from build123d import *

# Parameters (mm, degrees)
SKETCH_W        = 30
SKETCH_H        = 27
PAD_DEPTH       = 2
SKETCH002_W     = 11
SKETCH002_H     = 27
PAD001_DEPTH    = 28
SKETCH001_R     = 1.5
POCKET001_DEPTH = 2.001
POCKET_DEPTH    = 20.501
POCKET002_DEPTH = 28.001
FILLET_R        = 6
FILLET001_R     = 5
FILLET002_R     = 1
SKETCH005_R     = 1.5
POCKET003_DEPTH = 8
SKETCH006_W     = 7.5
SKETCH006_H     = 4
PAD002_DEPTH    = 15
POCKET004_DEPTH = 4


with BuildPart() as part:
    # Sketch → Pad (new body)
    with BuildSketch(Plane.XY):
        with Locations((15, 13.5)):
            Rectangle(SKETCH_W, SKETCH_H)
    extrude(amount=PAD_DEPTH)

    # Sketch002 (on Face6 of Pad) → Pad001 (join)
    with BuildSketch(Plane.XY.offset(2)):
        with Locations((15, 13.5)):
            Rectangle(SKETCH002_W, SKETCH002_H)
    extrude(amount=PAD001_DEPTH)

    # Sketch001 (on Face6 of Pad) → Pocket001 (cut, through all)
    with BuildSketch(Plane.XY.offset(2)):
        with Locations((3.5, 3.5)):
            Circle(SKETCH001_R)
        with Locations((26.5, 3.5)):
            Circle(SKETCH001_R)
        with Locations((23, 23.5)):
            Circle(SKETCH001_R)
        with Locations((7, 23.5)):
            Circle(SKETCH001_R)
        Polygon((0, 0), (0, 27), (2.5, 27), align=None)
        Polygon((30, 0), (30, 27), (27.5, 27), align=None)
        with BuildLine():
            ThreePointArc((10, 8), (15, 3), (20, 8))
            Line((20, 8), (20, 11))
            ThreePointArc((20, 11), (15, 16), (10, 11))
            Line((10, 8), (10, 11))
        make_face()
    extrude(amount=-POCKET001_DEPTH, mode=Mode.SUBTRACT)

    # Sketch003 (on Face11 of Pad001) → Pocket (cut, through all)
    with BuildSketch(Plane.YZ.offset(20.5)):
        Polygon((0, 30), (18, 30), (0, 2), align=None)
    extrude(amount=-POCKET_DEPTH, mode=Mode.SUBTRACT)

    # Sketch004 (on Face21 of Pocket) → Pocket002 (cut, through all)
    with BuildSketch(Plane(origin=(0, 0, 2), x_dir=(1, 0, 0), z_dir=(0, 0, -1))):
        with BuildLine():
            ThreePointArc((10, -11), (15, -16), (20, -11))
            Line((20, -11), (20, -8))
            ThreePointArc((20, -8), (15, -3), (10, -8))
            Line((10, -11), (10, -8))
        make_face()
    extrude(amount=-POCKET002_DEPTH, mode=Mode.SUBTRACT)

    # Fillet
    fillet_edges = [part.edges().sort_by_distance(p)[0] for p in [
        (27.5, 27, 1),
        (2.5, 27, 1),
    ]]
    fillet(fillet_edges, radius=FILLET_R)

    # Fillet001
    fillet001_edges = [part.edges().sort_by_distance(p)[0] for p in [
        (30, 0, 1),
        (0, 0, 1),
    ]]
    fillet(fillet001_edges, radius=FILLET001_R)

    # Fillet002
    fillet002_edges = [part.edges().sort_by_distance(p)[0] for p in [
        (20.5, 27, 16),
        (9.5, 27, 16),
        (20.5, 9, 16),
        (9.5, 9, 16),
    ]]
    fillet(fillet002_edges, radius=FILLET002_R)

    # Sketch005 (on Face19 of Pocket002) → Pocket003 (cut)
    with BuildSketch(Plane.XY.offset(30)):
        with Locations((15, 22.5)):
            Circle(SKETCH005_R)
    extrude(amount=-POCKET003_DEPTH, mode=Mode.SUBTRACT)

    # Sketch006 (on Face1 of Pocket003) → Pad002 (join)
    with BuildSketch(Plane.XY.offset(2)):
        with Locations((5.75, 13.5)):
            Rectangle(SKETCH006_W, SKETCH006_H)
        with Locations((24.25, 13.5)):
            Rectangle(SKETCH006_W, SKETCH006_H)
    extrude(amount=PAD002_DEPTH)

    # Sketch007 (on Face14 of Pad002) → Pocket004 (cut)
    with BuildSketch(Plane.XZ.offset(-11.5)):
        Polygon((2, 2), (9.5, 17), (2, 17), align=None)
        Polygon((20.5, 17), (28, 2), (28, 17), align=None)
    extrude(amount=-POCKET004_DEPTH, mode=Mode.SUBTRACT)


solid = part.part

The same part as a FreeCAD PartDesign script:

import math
import FreeCAD as App
import Part
import Sketcher

V = App.Vector
Q = App.Units.Quantity


def edges_at(feature, points):
    """Names of the edges that pass closest to the given points."""
    edges = feature.Shape.Edges
    near = lambda p: min(range(len(edges)), key=lambda i: edges[i].distToShape(Part.Vertex(*p))[0])
    return sorted({f"Edge{near(p) + 1}" for p in points})


def add_polygon(sketch, points):
    """Adds a closed chain of lines whose ends are joined by coincident constraints."""
    first, n = sketch.GeometryCount, len(points)
    for a, b in zip(points, points[1:] + points[:1]):
        sketch.addGeometry(Part.LineSegment(App.Vector(*a, 0), App.Vector(*b, 0)), False)
    for i in range(n):
        sketch.addConstraint(Sketcher.Constraint("Coincident", first + i, 2, first + (i + 1) % n, 1))

doc = App.newDocument("Part")
body = doc.addObject("PartDesign::Body", "Body")

# Sketch on XY plane
sketch1 = body.newObject("Sketcher::SketchObject", "Sketch")
sketch1.AttachmentSupport = (doc.getObject("XY_Plane"), [""])
sketch1.MapMode = "FlatFace"
add_polygon(sketch1, [(0, 27), (0, 0), (30, 0), (30, 27)])  # lines 0-3
sketch1.addConstraint([
    Sketcher.Constraint("Vertical", 0),
    Sketcher.Constraint("Horizontal", 1),
    Sketcher.Constraint("Vertical", 2),
    Sketcher.Constraint("Horizontal", 3),
    Sketcher.Constraint("Coincident", 0, 2, -1, 1),
    Sketcher.Constraint("DistanceX", 1, 1, 1, 2, Q("30 mm")),
    Sketcher.Constraint("DistanceY", 0, 2, 0, 1, Q("27 mm")),
])
pad1 = body.newObject("PartDesign::Pad", "Pad")
pad1.Profile = sketch1
pad1.Length = 2

# Sketch on XY plane
sketch2 = body.newObject("Sketcher::SketchObject", "Sketch001")
sketch2.AttachmentSupport = (doc.getObject("XY_Plane"), [""])
sketch2.MapMode = "FlatFace"
sketch2.AttachmentOffset = App.Placement(V(0, 0, 2), App.Rotation())
add_polygon(sketch2, [(10, 27), (10, 0), (20, 0), (20, 27)])  # lines 0-3
sketch2.addConstraint([
    Sketcher.Constraint("Vertical", 0),
    Sketcher.Constraint("Horizontal", 1),
    Sketcher.Constraint("Vertical", 2),
    Sketcher.Constraint("Horizontal", 3),
    Sketcher.Constraint("PointOnObject", 0, 2, -1),
    Sketcher.Constraint("DistanceX", 1, 1, 1, 2, Q("11 mm")),
    Sketcher.Constraint("DistanceY", 0, 2, 0, 1, Q("27 mm")),
    Sketcher.Constraint("DistanceX", -1, 1, 0, 2, Q("9.5 mm")),
])
pad2 = body.newObject("PartDesign::Pad", "Pad001")
pad2.Profile = sketch2
pad2.Length = 28

# Sketch on XY plane
sketch3 = body.newObject("Sketcher::SketchObject", "Sketch002")
sketch3.AttachmentSupport = (doc.getObject("XY_Plane"), [""])
sketch3.MapMode = "FlatFace"
sketch3.AttachmentOffset = App.Placement(V(0, 0, 2), App.Rotation())
sketch3.addGeometry(Part.Circle(V(3.5, 3.5, 0), V(0, 0, 1), 1.5), False)  # 0
sketch3.addGeometry(Part.Circle(V(26.5, 3.5, 0), V(0, 0, 1), 1.5), False)  # 1
sketch3.addGeometry(Part.Circle(V(23, 23.5, 0), V(0, 0, 1), 1.5), False)  # 2
sketch3.addGeometry(Part.Circle(V(7, 23.5, 0), V(0, 0, 1), 1.5), False)  # 3
add_polygon(sketch3, [(0, 27), (0, 0), (2.5, 27)])  # lines 4-6
add_polygon(sketch3, [(30, 0), (30, 27), (27.5, 27)])  # lines 7-9
sketch3.addGeometry(Part.ArcOfCircle(Part.Circle(V(15, 8, 0), V(0, 0, 1), 5), math.radians(180), math.radians(360)), False)  # 10
sketch3.addGeometry(Part.LineSegment(V(20, 8, 0), V(20, 11, 0)), False)  # 11
sketch3.addGeometry(Part.ArcOfCircle(Part.Circle(V(15, 11, 0), V(0, 0, 1), 5), math.radians(0), math.radians(180)), False)  # 12
sketch3.addGeometry(Part.LineSegment(V(10, 11, 0), V(10, 8, 0)), False)  # 13
sketch3.addConstraint([
    Sketcher.Constraint("Tangent", 10, 2, 11, 1),
    Sketcher.Constraint("Tangent", 11, 2, 12, 1),
    Sketcher.Constraint("Tangent", 12, 2, 13, 1),
    Sketcher.Constraint("Tangent", 13, 2, 10, 1),
    Sketcher.Constraint("Vertical", 4),
    Sketcher.Constraint("Horizontal", 6),
    Sketcher.Constraint("Vertical", 7),
    Sketcher.Constraint("Horizontal", 8),
    Sketcher.Constraint("Vertical", 11),
    Sketcher.Constraint("Vertical", 13),
    Sketcher.Constraint("Coincident", 4, 2, -1, 1),
    Sketcher.Constraint("Equal", 0, 1),
    Sketcher.Constraint("Equal", 1, 2),
    Sketcher.Constraint("Equal", 2, 3),
    Sketcher.Constraint("PointOnObject", 9, 2, -1),
    Sketcher.Constraint("Horizontal", 0, 3, 1, 3),
    Sketcher.Constraint("Horizontal", 2, 3, 3, 3),
    Sketcher.Constraint("Horizontal", 6, 2, 7, 2),
    Sketcher.Constraint("Equal", 6, 8),
    Sketcher.Constraint("Diameter", 0, Q("3 mm")),
    Sketcher.Constraint("Radius", 10, Q("5 mm")),
    Sketcher.Constraint("DistanceY", 4, 2, 4, 1, Q("27 mm")),
    Sketcher.Constraint("DistanceY", 11, 1, 11, 2, Q("3 mm")),
    Sketcher.Constraint("DistanceX", 6, 2, 6, 1, Q("2.5 mm")),
    Sketcher.Constraint("DistanceX", -1, 1, 2, 3, Q("23 mm")),
    Sketcher.Constraint("DistanceX", -1, 1, 3, 3, Q("7 mm")),
    Sketcher.Constraint("DistanceX", -1, 1, 10, 3, Q("15 mm")),
    Sketcher.Constraint("DistanceY", -1, 1, 10, 3, Q("8 mm")),
    Sketcher.Constraint("DistanceX", -1, 1, 7, 2, Q("30 mm")),
    Sketcher.Constraint("DistanceX", 0, 3, 1, 3, Q("23 mm")),
    Sketcher.Constraint("DistanceY", 1, 3, 2, 3, Q("20 mm")),
    Sketcher.Constraint("DistanceX", 5, 2, 0, 3, Q("1 mm")),
    Sketcher.Constraint("DistanceY", -1, 1, 0, 3, Q("3.5 mm")),
])
pocket1 = body.newObject("PartDesign::Pocket", "Pocket")
pocket1.Profile = sketch3
pocket1.Type = "ThroughAll"

# Sketch on YZ plane
sketch4 = body.newObject("Sketcher::SketchObject", "Sketch003")
sketch4.AttachmentSupport = (doc.getObject("YZ_Plane"), [""])
sketch4.MapMode = "FlatFace"
sketch4.AttachmentOffset = App.Placement(V(0, 0, 20.5), App.Rotation())
add_polygon(sketch4, [(18, 30), (0, 30), (0, 2)])  # lines 0-2
sketch4.addConstraint([
    Sketcher.Constraint("Horizontal", 0),
    Sketcher.Constraint("Vertical", 1),
    Sketcher.Constraint("PointOnObject", 0, 2, -2),
    Sketcher.Constraint("DistanceX", 0, 2, 0, 1, Q("18 mm")),
    Sketcher.Constraint("DistanceY", 1, 2, 1, 1, Q("28 mm")),
    Sketcher.Constraint("DistanceY", -1, 1, 0, 2, Q("30 mm")),
])
pocket2 = body.newObject("PartDesign::Pocket", "Pocket001")
pocket2.Profile = sketch4
pocket2.Type = "ThroughAll"

# Sketch on XY plane
sketch5 = body.newObject("Sketcher::SketchObject", "Sketch004")
sketch5.AttachmentSupport = (doc.getObject("XY_Plane"), [""])
sketch5.MapMode = "FlatFace"
sketch5.AttachmentOffset = App.Placement(V(0, 0, 2), App.Rotation())
sketch5.addGeometry([
    Part.ArcOfCircle(Part.Circle(V(15, 11, 0), V(0, 0, 1), 5), math.radians(0), math.radians(180)),
    Part.LineSegment(V(20, 11, 0), V(20, 8, 0)),
    Part.ArcOfCircle(Part.Circle(V(15, 8, 0), V(0, 0, 1), 5), math.radians(180), math.radians(360)),
    Part.LineSegment(V(10, 8, 0), V(10, 11, 0)),
], False)
sketch5.addConstraint([
    Sketcher.Constraint("Tangent", 0, 1, 1, 1),
    Sketcher.Constraint("Tangent", 1, 2, 2, 2),
    Sketcher.Constraint("Tangent", 2, 1, 3, 1),
    Sketcher.Constraint("Tangent", 3, 2, 0, 2),
    Sketcher.Constraint("Vertical", 1),
    Sketcher.Constraint("Vertical", 3),
    Sketcher.Constraint("Radius", 0, Q("5 mm")),
    Sketcher.Constraint("DistanceY", 1, 2, 1, 1, Q("3 mm")),
    Sketcher.Constraint("DistanceX", -1, 1, 0, 3, Q("15 mm")),
    Sketcher.Constraint("DistanceY", -1, 1, 0, 3, Q("11 mm")),
])
pocket3 = body.newObject("PartDesign::Pocket", "Pocket002")
pocket3.Profile = sketch5
pocket3.Type = "ThroughAll"
pocket3.Reversed = True
doc.recompute()

fillet = body.newObject("PartDesign::Fillet", "Fillet")
fillet.Base = (pocket3, edges_at(pocket3, [(27.5, 27, 1), (2.5, 27, 1)]))
fillet.Radius = 6
doc.recompute()

fillet2 = body.newObject("PartDesign::Fillet", "Fillet001")
fillet2.Base = (fillet, edges_at(fillet, [(30, 0, 1), (0, 0, 1)]))
fillet2.Radius = 5
doc.recompute()

fillet3 = body.newObject("PartDesign::Fillet", "Fillet002")
fillet3.Base = (fillet2, edges_at(fillet2, [
    (20.5, 27, 16),
    (9.5, 27, 16),
    (20.5, 9, 16),
    (9.5, 9, 16),
]))
fillet3.Radius = 1

# Sketch on XY plane
sketch6 = body.newObject("Sketcher::SketchObject", "Sketch005")
sketch6.AttachmentSupport = (doc.getObject("XY_Plane"), [""])
sketch6.MapMode = "FlatFace"
sketch6.AttachmentOffset = App.Placement(V(0, 0, 30), App.Rotation())
sketch6.addGeometry(Part.Circle(V(15, 22.5, 0), V(0, 0, 1), 1.5), False)
sketch6.addConstraint([
    Sketcher.Constraint("Diameter", 0, Q("3 mm")),
    Sketcher.Constraint("DistanceX", -1, 1, 0, 3, Q("15 mm")),
    Sketcher.Constraint("DistanceY", -1, 1, 0, 3, Q("22.5 mm")),
])
pocket4 = body.newObject("PartDesign::Pocket", "Pocket003")
pocket4.Profile = sketch6
pocket4.Length = 8

# Sketch on XY plane
sketch7 = body.newObject("Sketcher::SketchObject", "Sketch006")
sketch7.AttachmentSupport = (doc.getObject("XY_Plane"), [""])
sketch7.MapMode = "FlatFace"
sketch7.AttachmentOffset = App.Placement(V(0, 0, 2), App.Rotation())
add_polygon(sketch7, [(2, 15.5), (2, 11.5), (9.5, 11.5), (9.5, 15.5)])  # lines 0-3
add_polygon(sketch7, [(20.5, 15.5), (20.5, 11.5), (28, 11.5), (28, 15.5)])  # lines 4-7
sketch7.addConstraint([
    Sketcher.Constraint("Vertical", 0),
    Sketcher.Constraint("Horizontal", 1),
    Sketcher.Constraint("Vertical", 2),
    Sketcher.Constraint("Horizontal", 3),
    Sketcher.Constraint("Vertical", 4),
    Sketcher.Constraint("Horizontal", 5),
    Sketcher.Constraint("Vertical", 6),
    Sketcher.Constraint("Horizontal", 7),
    Sketcher.Constraint("Horizontal", 1, 2, 4, 2),
    Sketcher.Constraint("Horizontal", 3, 2, 6, 2),
    Sketcher.Constraint("Equal", 3, 5),
    Sketcher.Constraint("DistanceY", 0, 2, 0, 1, Q("4 mm")),
    Sketcher.Constraint("DistanceX", 1, 1, 1, 2, Q("7.5 mm")),
    Sketcher.Constraint("DistanceX", -1, 1, 0, 2, Q("2 mm")),
    Sketcher.Constraint("DistanceX", -1, 1, 5, 2, Q("28 mm")),
    Sketcher.Constraint("DistanceY", -1, 1, 0, 2, Q("11.5 mm")),
])
pad3 = body.newObject("PartDesign::Pad", "Pad002")
pad3.Profile = sketch7
pad3.Length = 15

# Sketch on XZ plane
sketch8 = body.newObject("Sketcher::SketchObject", "Sketch007")
sketch8.AttachmentSupport = (doc.getObject("XZ_Plane"), [""])
sketch8.MapMode = "FlatFace"
sketch8.AttachmentOffset = App.Placement(V(0, 0, -11.5), App.Rotation())
add_polygon(sketch8, [(2, 2), (10, 17), (2, 17)])  # lines 0-2
add_polygon(sketch8, [(20, 17), (28, 2), (28, 17)])  # lines 3-5
sketch8.addConstraint([
    Sketcher.Constraint("Horizontal", 1),
    Sketcher.Constraint("Vertical", 2),
    Sketcher.Constraint("Vertical", 4),
    Sketcher.Constraint("Horizontal", 5),
    Sketcher.Constraint("Horizontal", 2, 2, 3, 2),
    Sketcher.Constraint("Horizontal", 1, 2, 4, 2),
    Sketcher.Constraint("Equal", 1, 5),
    Sketcher.Constraint("DistanceY", 2, 2, 2, 1, Q("15 mm")),
    Sketcher.Constraint("DistanceX", 1, 2, 1, 1, Q("7.5 mm")),
    Sketcher.Constraint("DistanceY", -1, 1, 0, 2, Q("17 mm")),
    Sketcher.Constraint("DistanceX", -1, 1, 1, 2, Q("2 mm")),
    Sketcher.Constraint("DistanceX", -1, 1, 3, 2, Q("28 mm")),
])
pocket5 = body.newObject("PartDesign::Pocket", "Pocket004")
pocket5.Profile = sketch8
pocket5.Length = 4

doc.recompute()
